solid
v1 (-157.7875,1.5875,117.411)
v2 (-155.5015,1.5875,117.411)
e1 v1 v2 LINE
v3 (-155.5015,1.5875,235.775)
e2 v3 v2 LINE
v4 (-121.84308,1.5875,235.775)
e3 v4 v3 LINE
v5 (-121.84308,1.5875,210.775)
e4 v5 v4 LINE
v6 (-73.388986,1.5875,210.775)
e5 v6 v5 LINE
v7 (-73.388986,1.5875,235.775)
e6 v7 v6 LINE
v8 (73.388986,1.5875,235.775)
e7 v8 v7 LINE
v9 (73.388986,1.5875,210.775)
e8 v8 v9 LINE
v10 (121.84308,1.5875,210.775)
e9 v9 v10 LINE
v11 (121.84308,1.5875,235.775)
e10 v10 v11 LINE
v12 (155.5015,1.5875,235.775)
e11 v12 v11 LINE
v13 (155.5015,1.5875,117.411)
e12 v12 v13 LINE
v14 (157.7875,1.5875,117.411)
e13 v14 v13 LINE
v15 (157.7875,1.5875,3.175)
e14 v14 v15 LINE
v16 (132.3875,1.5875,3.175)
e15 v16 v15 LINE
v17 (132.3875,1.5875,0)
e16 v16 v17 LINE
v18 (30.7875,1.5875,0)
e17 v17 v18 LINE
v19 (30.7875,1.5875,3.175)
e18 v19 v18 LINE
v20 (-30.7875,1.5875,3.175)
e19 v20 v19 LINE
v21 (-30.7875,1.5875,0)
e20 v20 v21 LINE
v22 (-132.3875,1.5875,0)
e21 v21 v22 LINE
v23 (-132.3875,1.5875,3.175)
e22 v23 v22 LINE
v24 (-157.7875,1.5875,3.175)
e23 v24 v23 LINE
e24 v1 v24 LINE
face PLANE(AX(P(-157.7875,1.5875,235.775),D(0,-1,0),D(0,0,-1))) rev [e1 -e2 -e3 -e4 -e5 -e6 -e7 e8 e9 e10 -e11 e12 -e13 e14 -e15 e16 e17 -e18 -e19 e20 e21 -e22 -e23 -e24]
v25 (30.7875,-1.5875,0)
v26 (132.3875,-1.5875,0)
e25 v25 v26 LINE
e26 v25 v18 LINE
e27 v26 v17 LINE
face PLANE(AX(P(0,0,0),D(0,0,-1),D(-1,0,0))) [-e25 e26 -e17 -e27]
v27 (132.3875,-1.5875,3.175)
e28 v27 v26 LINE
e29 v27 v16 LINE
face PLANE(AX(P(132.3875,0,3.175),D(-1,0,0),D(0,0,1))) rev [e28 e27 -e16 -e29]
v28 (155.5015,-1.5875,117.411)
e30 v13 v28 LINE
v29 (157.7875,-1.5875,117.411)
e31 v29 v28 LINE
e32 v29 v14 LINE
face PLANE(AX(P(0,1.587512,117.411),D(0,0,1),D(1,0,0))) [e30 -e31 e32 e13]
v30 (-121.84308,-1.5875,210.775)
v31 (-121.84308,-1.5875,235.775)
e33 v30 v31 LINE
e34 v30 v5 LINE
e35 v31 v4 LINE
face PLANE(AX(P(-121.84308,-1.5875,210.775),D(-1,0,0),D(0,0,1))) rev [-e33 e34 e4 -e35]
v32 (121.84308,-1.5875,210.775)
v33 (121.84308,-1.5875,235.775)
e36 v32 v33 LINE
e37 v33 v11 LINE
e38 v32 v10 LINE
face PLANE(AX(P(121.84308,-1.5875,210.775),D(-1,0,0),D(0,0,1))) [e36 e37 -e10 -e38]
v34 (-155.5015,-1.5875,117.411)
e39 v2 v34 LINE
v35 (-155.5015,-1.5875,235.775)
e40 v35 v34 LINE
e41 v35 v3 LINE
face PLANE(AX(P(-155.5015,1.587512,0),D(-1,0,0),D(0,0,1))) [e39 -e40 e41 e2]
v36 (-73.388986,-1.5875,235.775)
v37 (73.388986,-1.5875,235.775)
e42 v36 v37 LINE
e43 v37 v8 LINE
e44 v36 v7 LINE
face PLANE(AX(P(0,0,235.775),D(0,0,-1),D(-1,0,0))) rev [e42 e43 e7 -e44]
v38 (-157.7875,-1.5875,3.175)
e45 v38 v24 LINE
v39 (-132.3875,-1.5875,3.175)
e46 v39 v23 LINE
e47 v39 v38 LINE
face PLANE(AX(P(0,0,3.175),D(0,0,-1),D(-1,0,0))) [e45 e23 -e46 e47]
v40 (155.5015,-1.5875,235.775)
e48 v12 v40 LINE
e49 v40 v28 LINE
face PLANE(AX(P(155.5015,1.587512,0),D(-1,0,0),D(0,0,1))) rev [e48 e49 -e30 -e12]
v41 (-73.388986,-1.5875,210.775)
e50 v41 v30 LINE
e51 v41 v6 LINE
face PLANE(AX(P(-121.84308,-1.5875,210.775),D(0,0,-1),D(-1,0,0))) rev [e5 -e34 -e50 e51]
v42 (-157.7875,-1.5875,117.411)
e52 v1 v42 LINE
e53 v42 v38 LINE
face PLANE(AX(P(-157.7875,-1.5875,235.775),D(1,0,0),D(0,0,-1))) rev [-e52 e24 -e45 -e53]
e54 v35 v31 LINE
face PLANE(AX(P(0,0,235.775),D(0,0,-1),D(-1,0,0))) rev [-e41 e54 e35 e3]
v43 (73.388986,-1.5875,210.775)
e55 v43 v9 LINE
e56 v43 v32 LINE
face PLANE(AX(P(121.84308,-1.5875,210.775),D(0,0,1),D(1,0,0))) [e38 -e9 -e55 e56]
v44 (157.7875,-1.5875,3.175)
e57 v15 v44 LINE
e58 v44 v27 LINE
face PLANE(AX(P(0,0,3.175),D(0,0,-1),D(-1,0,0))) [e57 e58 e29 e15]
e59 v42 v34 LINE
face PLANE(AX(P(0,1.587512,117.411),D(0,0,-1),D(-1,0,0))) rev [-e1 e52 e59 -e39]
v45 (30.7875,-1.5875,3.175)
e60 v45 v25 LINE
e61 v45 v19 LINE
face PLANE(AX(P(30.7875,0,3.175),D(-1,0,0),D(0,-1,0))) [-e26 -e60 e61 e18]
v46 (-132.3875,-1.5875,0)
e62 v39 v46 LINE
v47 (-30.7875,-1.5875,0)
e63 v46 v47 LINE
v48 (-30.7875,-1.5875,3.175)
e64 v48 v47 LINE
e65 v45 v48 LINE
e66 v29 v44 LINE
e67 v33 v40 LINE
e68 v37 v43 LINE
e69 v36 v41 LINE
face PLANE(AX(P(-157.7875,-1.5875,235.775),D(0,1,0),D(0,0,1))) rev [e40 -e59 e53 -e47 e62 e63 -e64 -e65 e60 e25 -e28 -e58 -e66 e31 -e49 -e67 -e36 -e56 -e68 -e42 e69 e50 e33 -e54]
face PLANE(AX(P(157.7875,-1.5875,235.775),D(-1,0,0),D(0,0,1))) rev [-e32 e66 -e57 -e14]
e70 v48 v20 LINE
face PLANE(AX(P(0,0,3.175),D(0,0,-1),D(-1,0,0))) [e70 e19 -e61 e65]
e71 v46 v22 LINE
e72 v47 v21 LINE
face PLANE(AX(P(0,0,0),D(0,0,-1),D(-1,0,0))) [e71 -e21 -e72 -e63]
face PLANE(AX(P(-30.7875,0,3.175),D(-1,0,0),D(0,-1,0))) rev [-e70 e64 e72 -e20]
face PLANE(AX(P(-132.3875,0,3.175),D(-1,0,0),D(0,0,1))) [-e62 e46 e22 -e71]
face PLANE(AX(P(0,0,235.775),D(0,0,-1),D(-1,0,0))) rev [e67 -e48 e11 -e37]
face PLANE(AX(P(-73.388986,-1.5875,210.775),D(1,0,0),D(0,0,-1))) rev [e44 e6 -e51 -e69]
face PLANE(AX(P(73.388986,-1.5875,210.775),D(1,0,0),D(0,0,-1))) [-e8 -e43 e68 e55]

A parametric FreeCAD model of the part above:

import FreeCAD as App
import Part
import Sketcher
Q = App.Units.Quantity

doc = App.newDocument("Part")
body = doc.addObject("PartDesign::Body", "Body")

sketch1 = doc.addObject("Sketcher::SketchObject", "Sketch")
body.addObject(sketch1)
sketch1.AttachmentSupport = (doc.XY_Plane, [""])
sketch1.MapMode = "FlatFace"
sketch1.addGeometry(Part.LineSegment(App.Vector(-157.8, 1.6, 0), App.Vector(-157.8, -1.6, 0)), False)
sketch1.addGeometry(Part.LineSegment(App.Vector(-157.8, -1.6, 0), App.Vector(157.8, -1.6, 0)), False)
sketch1.addGeometry(Part.LineSegment(App.Vector(157.8, -1.6, 0), App.Vector(157.8, 1.6, 0)), False)
sketch1.addGeometry(Part.LineSegment(App.Vector(157.8, 1.6, 0), App.Vector(-157.8, 1.6, 0)), False)
sketch1.addConstraint(Sketcher.Constraint("Coincident", 0, 2, 1, 1))
sketch1.addConstraint(Sketcher.Constraint("Coincident", 1, 2, 2, 1))
sketch1.addConstraint(Sketcher.Constraint("Coincident", 2, 2, 3, 1))
sketch1.addConstraint(Sketcher.Constraint("Coincident", 3, 2, 0, 1))
sketch1.addConstraint(Sketcher.Constraint("Vertical", 0))
sketch1.addConstraint(Sketcher.Constraint("Horizontal", 1))
sketch1.addConstraint(Sketcher.Constraint("Vertical", 2))
sketch1.addConstraint(Sketcher.Constraint("Horizontal", 3))
sketch1.addConstraint(Sketcher.Constraint("Symmetric", 0, 2, 2, 2, -1, 1))
sketch1.addConstraint(Sketcher.Constraint("DistanceY", 0, 2, 0, 1, Q("0.125 in")))
sketch1.addConstraint(Sketcher.Constraint("DistanceX", 1, 1, 1, 2, 315.575))
pad1 = doc.addObject("PartDesign::Pad", "Pad")
body.addObject(pad1)
pad1.Profile = sketch1
pad1.Length = 235.775

sketch2 = doc.addObject("Sketcher::SketchObject", "Sketch001")
body.addObject(sketch2)
sketch2.AttachmentSupport = (doc.XY_Plane, [""])
sketch2.MapMode = "FlatFace"
sketch2.addGeometry(Part.LineSegment(App.Vector(157.8, 1.6, 0), App.Vector(157.8, -1.6, 0)), False)
sketch2.addGeometry(Part.LineSegment(App.Vector(157.8, -1.6, 0), App.Vector(132.4, -1.6, 0)), False)
sketch2.addGeometry(Part.LineSegment(App.Vector(132.4, -1.6, 0), App.Vector(132.4, 1.6, 0)), False)
sketch2.addGeometry(Part.LineSegment(App.Vector(132.4, 1.6, 0), App.Vector(157.8, 1.6, 0)), False)
sketch2.addGeometry(Part.LineSegment(App.Vector(30.8, 1.6, 0), App.Vector(30.8, -1.6, 0)), False)
sketch2.addGeometry(Part.LineSegment(App.Vector(30.8, -1.6, 0), App.Vector(-30.8, -1.6, 0)), False)
sketch2.addGeometry(Part.LineSegment(App.Vector(-30.8, -1.6, 0), App.Vector(-30.8, 1.6, 0)), False)
sketch2.addGeometry(Part.LineSegment(App.Vector(-30.8, 1.6, 0), App.Vector(30.8, 1.6, 0)), False)
sketch2.addGeometry(Part.LineSegment(App.Vector(-132.4, 1.6, 0), App.Vector(-132.4, -1.6, 0)), False)
sketch2.addGeometry(Part.LineSegment(App.Vector(-132.4, -1.6, 0), App.Vector(-157.8, -1.6, 0)), False)
sketch2.addGeometry(Part.LineSegment(App.Vector(-157.8, -1.6, 0), App.Vector(-157.8, 1.6, 0)), False)
sketch2.addGeometry(Part.LineSegment(App.Vector(-157.8, 1.6, 0), App.Vector(-132.4, 1.6, 0)), False)
sketch2.addConstraint(Sketcher.Constraint("Coincident", 0, 2, 1, 1))
sketch2.addConstraint(Sketcher.Constraint("Coincident", 1, 2, 2, 1))
sketch2.addConstraint(Sketcher.Constraint("Coincident", 2, 2, 3, 1))
sketch2.addConstraint(Sketcher.Constraint("Coincident", 3, 2, 0, 1))
sketch2.addConstraint(Sketcher.Constraint("Coincident", 4, 2, 5, 1))
sketch2.addConstraint(Sketcher.Constraint("Coincident", 5, 2, 6, 1))
sketch2.addConstraint(Sketcher.Constraint("Coincident", 6, 2, 7, 1))
sketch2.addConstraint(Sketcher.Constraint("Coincident", 7, 2, 4, 1))
sketch2.addConstraint(Sketcher.Constraint("Coincident", 8, 2, 9, 1))
sketch2.addConstraint(Sketcher.Constraint("Coincident", 9, 2, 10, 1))
sketch2.addConstraint(Sketcher.Constraint("Coincident", 10, 2, 11, 1))
sketch2.addConstraint(Sketcher.Constraint("Coincident", 11, 2, 8, 1))
sketch2.addConstraint(Sketcher.Constraint("Vertical", 0))
sketch2.addConstraint(Sketcher.Constraint("Horizontal", 1))
sketch2.addConstraint(Sketcher.Constraint("Vertical", 2))
sketch2.addConstraint(Sketcher.Constraint("Horizontal", 3))
sketch2.addConstraint(Sketcher.Constraint("Vertical", 4))
sketch2.addConstraint(Sketcher.Constraint("Horizontal", 5))
sketch2.addConstraint(Sketcher.Constraint("Vertical", 6))
sketch2.addConstraint(Sketcher.Constraint("Horizontal", 7))
sketch2.addConstraint(Sketcher.Constraint("Vertical", 8))
sketch2.addConstraint(Sketcher.Constraint("Horizontal", 9))
sketch2.addConstraint(Sketcher.Constraint("Vertical", 10))
sketch2.addConstraint(Sketcher.Constraint("Horizontal", 11))
sketch2.addConstraint(Sketcher.Constraint("Symmetric", 4, 2, 6, 2, -1, 1))
sketch2.addConstraint(Sketcher.Constraint("Symmetric", 2, 2, 8, 2, -1, 1))
sketch2.addConstraint(Sketcher.Constraint("Symmetric", 0, 2, 10, 2, -1, 1))
sketch2.addConstraint(Sketcher.Constraint("Horizontal", 1, 2, 4, 2))
sketch2.addConstraint(Sketcher.Constraint("Horizontal", 3, 2, 6, 2))
sketch2.addConstraint(Sketcher.Constraint("DistanceX", 1, 2, 1, 1, Q("1 in")))
sketch2.addConstraint(Sketcher.Constraint("DistanceX", 4, 2, 1, 2, Q("4 in")))
sketch2.addConstraint(Sketcher.Constraint("DistanceY", 0, 2, 0, 1, Q("0.125 in")))
sketch2.addConstraint(Sketcher.Constraint("DistanceX", 5, 2, 5, 1, 61.575))
pocket1 = doc.addObject("PartDesign::Pocket", "Pocket")
body.addObject(pocket1)
pocket1.Profile = sketch2
pocket1.Length = Q("0.125 in")
pocket1.Reversed = True

sketch3 = doc.addObject("Sketcher::SketchObject", "Sketch002")
body.addObject(sketch3)
sketch3.AttachmentSupport = (doc.XZ_Plane, [""])
sketch3.MapMode = "FlatFace"
sketch3.AttachmentOffset = App.Placement(App.Vector(0, 0, 0.0625 * 25.4), App.Rotation())
sketch3.addGeometry(Part.LineSegment(App.Vector(-157.8, 117.4, 0), App.Vector(-157.8, 235.8, 0)), False)
sketch3.addGeometry(Part.LineSegment(App.Vector(-157.8, 235.8, 0), App.Vector(-155.5, 235.8, 0)), False)
sketch3.addGeometry(Part.LineSegment(App.Vector(-155.5, 235.8, 0), App.Vector(-155.5, 117.4, 0)), False)
sketch3.addGeometry(Part.LineSegment(App.Vector(-155.5, 117.4, 0), App.Vector(-157.8, 117.4, 0)), False)
sketch3.addConstraint(Sketcher.Constraint("Coincident", 0, 2, 1, 1))
sketch3.addConstraint(Sketcher.Constraint("Coincident", 1, 2, 2, 1))
sketch3.addConstraint(Sketcher.Constraint("Coincident", 2, 2, 3, 1))
sketch3.addConstraint(Sketcher.Constraint("Coincident", 3, 2, 0, 1))
sketch3.addConstraint(Sketcher.Constraint("Vertical", 0))
sketch3.addConstraint(Sketcher.Constraint("Horizontal", 1))
sketch3.addConstraint(Sketcher.Constraint("Vertical", 2))
sketch3.addConstraint(Sketcher.Constraint("Horizontal", 3))
sketch3.addConstraint(Sketcher.Constraint("DistanceX", 1, 1, 1, 2, Q("0.09 in")))
sketch3.addConstraint(Sketcher.Constraint("DistanceY", 0, 1, 0, 2, Q("4.66 in")))
sketch3.addConstraint(Sketcher.Constraint("DistanceX", 0, 2, -1, 1, 157.7875))
sketch3.addConstraint(Sketcher.Constraint("DistanceY", -1, 1, 0, 2, 235.775))
pocket2 = doc.addObject("PartDesign::Pocket", "Pocket001")
body.addObject(pocket2)
pocket2.Profile = sketch3
pocket2.Length = 287.894626
doc.recompute()

mirrored = doc.addObject("PartDesign::Mirrored", "Mirrored")
body.addObject(mirrored)
mirrored.Originals = [pocket2]
mirrored.MirrorPlane = (doc.YZ_Plane, [""])
body.Tip = mirrored

sketch4 = doc.addObject("Sketcher::SketchObject", "Sketch003")
body.addObject(sketch4)
sketch4.AttachmentSupport = (doc.XZ_Plane, [""])
sketch4.MapMode = "FlatFace"
sketch4.AttachmentOffset = App.Placement(App.Vector(0, 0, -0.0625 * 25.4), App.Rotation())
sketch4.addGeometry(Part.LineSegment(App.Vector(-122, 211, 0), App.Vector(-122, 236, 0)), False)
sketch4.addGeometry(Part.LineSegment(App.Vector(-122, 236, 0), App.Vector(-73, 236, 0)), False)
sketch4.addGeometry(Part.LineSegment(App.Vector(-73, 236, 0), App.Vector(-73, 211, 0)), False)
sketch4.addGeometry(Part.LineSegment(App.Vector(-73, 211, 0), App.Vector(-122, 211, 0)), False)
sketch4.addConstraint(Sketcher.Constraint("Coincident", 0, 2, 1, 1))
sketch4.addConstraint(Sketcher.Constraint("Coincident", 1, 2, 2, 1))
sketch4.addConstraint(Sketcher.Constraint("Coincident", 2, 2, 3, 1))
sketch4.addConstraint(Sketcher.Constraint("Coincident", 3, 2, 0, 1))
sketch4.addConstraint(Sketcher.Constraint("Vertical", 0))
sketch4.addConstraint(Sketcher.Constraint("Horizontal", 1))
sketch4.addConstraint(Sketcher.Constraint("Vertical", 2))
sketch4.addConstraint(Sketcher.Constraint("Horizontal", 3))
sketch4.addConstraint(Sketcher.Constraint("DistanceY", 0, 1, 0, 2, 25.0))
sketch4.addConstraint(Sketcher.Constraint("DistanceY", -1, 1, 0, 2, 235.775))
sketch4.addConstraint(Sketcher.Constraint("DistanceX", 1, 1, 1, 2, 48.454094))
sketch4.addConstraint(Sketcher.Constraint("DistanceX", 0, 2, -1, 1, 121.84308))
pocket3 = doc.addObject("PartDesign::Pocket", "Pocket002")
body.addObject(pocket3)
pocket3.Profile = sketch4
pocket3.Type = "ThroughAll"
pocket3.Reversed = True
doc.recompute()

mirrored2 = doc.addObject("PartDesign::Mirrored", "Mirrored001")
body.addObject(mirrored2)
mirrored2.Originals = [pocket3]
mirrored2.MirrorPlane = (doc.YZ_Plane, [""])
body.Tip = mirrored2

doc.recompute()
